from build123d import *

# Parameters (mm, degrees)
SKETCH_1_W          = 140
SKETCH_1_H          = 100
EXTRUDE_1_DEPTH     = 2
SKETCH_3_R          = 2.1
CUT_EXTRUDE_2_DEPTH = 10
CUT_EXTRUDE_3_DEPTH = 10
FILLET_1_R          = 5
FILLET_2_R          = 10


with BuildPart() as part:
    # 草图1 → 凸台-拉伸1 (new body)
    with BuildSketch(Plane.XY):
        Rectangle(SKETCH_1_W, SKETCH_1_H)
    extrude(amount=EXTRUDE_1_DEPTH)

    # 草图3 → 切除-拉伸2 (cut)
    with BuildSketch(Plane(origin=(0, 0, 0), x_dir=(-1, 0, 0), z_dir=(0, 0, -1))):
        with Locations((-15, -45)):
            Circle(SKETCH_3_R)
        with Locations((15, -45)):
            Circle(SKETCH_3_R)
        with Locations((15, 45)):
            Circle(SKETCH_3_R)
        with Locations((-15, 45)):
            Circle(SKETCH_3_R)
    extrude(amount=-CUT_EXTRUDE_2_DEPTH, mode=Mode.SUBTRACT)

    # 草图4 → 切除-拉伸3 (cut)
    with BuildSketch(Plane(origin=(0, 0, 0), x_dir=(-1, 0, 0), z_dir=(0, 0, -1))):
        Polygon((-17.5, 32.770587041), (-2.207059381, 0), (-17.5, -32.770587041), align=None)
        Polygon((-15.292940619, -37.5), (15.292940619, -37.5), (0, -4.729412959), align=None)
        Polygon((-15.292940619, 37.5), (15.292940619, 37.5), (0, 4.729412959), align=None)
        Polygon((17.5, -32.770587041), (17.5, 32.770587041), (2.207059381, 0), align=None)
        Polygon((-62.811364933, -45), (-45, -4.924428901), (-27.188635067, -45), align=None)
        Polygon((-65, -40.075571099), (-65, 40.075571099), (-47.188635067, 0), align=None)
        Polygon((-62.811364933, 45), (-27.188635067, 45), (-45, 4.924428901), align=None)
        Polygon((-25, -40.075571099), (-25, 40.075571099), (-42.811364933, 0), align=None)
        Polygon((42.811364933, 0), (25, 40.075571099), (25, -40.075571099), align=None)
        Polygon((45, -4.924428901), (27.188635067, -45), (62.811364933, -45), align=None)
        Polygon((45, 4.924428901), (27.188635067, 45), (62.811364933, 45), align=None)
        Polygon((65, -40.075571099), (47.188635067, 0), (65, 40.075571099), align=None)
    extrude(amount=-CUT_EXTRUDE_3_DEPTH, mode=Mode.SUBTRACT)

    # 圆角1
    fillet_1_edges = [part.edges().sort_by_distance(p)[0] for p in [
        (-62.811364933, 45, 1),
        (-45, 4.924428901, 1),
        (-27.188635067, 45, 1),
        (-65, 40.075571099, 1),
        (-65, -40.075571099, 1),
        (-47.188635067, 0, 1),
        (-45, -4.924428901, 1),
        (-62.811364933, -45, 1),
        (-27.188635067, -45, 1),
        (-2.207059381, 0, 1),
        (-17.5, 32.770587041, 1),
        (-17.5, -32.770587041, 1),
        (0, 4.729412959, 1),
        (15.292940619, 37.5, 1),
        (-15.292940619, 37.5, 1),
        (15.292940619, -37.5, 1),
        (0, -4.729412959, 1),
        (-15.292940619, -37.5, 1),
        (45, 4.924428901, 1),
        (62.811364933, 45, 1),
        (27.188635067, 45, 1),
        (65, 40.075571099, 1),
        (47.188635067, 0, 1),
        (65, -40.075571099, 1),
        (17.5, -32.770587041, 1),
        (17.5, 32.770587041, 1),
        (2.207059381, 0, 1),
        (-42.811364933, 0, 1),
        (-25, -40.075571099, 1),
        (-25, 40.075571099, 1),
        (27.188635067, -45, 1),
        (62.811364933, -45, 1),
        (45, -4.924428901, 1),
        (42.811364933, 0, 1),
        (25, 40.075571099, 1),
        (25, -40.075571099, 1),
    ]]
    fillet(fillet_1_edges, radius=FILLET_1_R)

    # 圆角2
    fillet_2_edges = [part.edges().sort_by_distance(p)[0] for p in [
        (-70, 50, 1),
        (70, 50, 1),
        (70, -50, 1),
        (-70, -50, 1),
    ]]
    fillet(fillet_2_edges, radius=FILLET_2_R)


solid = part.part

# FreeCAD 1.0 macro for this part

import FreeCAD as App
import Part
import Sketcher
from FreeCAD import Vector


def edges_at(feature, points):
    """Names of the edges that pass closest to the given points."""
    edges = feature.Shape.Edges
    near = lambda p: min(range(len(edges)), key=lambda i: edges[i].distToShape(Part.Vertex(*p))[0])
    return sorted({f"Edge{near(p) + 1}" for p in points})


def add_polygon(sketch, points):
    """Adds a closed chain of lines whose ends are joined by coincident constraints."""
    first, n = sketch.GeometryCount, len(points)
    for a, b in zip(points, points[1:] + points[:1]):
        sketch.addGeometry(Part.LineSegment(App.Vector(*a, 0), App.Vector(*b, 0)), False)
    for i in range(n):
        sketch.addConstraint(Sketcher.Constraint("Coincident", first + i, 2, first + (i + 1) % n, 1))

doc = App.newDocument("Part")
body = doc.addObject("PartDesign::Body", "Body")

# Sketch on XY plane
sketch1 = body.newObject("Sketcher::SketchObject", "Sketch")
sketch1.AttachmentSupport = (doc.getObject("XY_Plane"), [""])
sketch1.MapMode = "FlatFace"
add_polygon(sketch1, [(-70, 50), (-70, -50), (70, -50), (70, 50)])  # lines 0-3
sketch1.addConstraint(Sketcher.Constraint("Vertical", 0))
sketch1.addConstraint(Sketcher.Constraint("Horizontal", 1))
sketch1.addConstraint(Sketcher.Constraint("Vertical", 2))
sketch1.addConstraint(Sketcher.Constraint("Horizontal", 3))
sketch1.addConstraint(Sketcher.Constraint("Symmetric", 0, 2, 2, 2, -1, 1))
sketch1.addConstraint(Sketcher.Constraint("DistanceX", 1, 1, 1, 2, 140.0))
sketch1.addConstraint(Sketcher.Constraint("DistanceY", 0, 2, 0, 1, 100.0))
pad1 = body.newObject("PartDesign::Pad", "Pad")
pad1.Profile = sketch1
pad1.Length = 2

# Sketch on XY plane
sketch2 = body.newObject("Sketcher::SketchObject", "Sketch001")
sketch2.AttachmentSupport = (doc.getObject("XY_Plane"), [""])
sketch2.MapMode = "FlatFace"
sketch2.addGeometry(Part.Circle(Vector(15, -45, 0), Vector(0, 0, 1), 2.1), False)
sketch2.addGeometry(Part.Circle(Vector(-15, -45, 0), Vector(0, 0, 1), 2.1), False)
sketch2.addGeometry(Part.Circle(Vector(-15, 45, 0), Vector(0, 0, 1), 2.1), False)
sketch2.addGeometry(Part.Circle(Vector(15, 45, 0), Vector(0, 0, 1), 2.1), False)
sketch2.addConstraint(Sketcher.Constraint("Equal", 0, 1))
sketch2.addConstraint(Sketcher.Constraint("Equal", 1, 2))
sketch2.addConstraint(Sketcher.Constraint("Equal", 2, 3))
sketch2.addConstraint(Sketcher.Constraint("Symmetric", 0, 3, 2, 3, -1, 1))
sketch2.addConstraint(Sketcher.Constraint("Symmetric", 1, 3, 3, 3, -1, 1))
sketch2.addConstraint(Sketcher.Constraint("Symmetric", 0, 3, 1, 3, -2))
sketch2.addConstraint(Sketcher.Constraint("Diameter", 0, 4.2))
sketch2.addConstraint(Sketcher.Constraint("DistanceX", -1, 1, 0, 3, 15.0))
sketch2.addConstraint(Sketcher.Constraint("DistanceY", 0, 3, -1, 1, 45.0))
pocket1 = body.newObject("PartDesign::Pocket", "Pocket")
pocket1.Profile = sketch2
pocket1.Length = 10
pocket1.Reversed = True

# Sketch on XY plane
sketch3 = body.newObject("Sketcher::SketchObject", "Sketch002")
sketch3.AttachmentSupport = (doc.getObject("XY_Plane"), [""])
sketch3.MapMode = "FlatFace"
add_polygon(sketch3, [(2, 0), (18, 33), (18, -33)])  # lines 0-2
add_polygon(sketch3, [(15, -38), (-15, -38), (0, -5)])  # lines 3-5
add_polygon(sketch3, [(-15, 38), (15, 38), (0, 5)])  # lines 6-8
add_polygon(sketch3, [(-18, -33), (-18, 33), (-2, 0)])  # lines 9-11
add_polygon(sketch3, [(45, -5), (63, -45), (27, -45)])  # lines 12-14
add_polygon(sketch3, [(65, 40), (65, -40), (47, 0)])  # lines 15-17
add_polygon(sketch3, [(27, 45), (63, 45), (45, 5)])  # lines 18-20
add_polygon(sketch3, [(25, -40), (25, 40), (43, 0)])  # lines 21-23
add_polygon(sketch3, [(-43, 0), (-25, 40), (-25, -40)])  # lines 24-26
add_polygon(sketch3, [(-45, -5), (-27, -45), (-63, -45)])  # lines 27-29
add_polygon(sketch3, [(-27, 45), (-45, 5), (-63, 45)])  # lines 30-32
add_polygon(sketch3, [(-47, 0), (-65, -40), (-65, 40)])  # lines 33-35
sketch3.addConstraint(Sketcher.Constraint("Vertical", 1))
sketch3.addConstraint(Sketcher.Constraint("Horizontal", 3))
sketch3.addConstraint(Sketcher.Constraint("Horizontal", 6))
sketch3.addConstraint(Sketcher.Constraint("Vertical", 9))
sketch3.addConstraint(Sketcher.Constraint("Horizontal", 13))
sketch3.addConstraint(Sketcher.Constraint("Vertical", 15))
sketch3.addConstraint(Sketcher.Constraint("Horizontal", 18))
sketch3.addConstraint(Sketcher.Constraint("Vertical", 21))
sketch3.addConstraint(Sketcher.Constraint("Vertical", 25))
sketch3.addConstraint(Sketcher.Constraint("Horizontal", 28))
sketch3.addConstraint(Sketcher.Constraint("Horizontal", 32))
sketch3.addConstraint(Sketcher.Constraint("Vertical", 34))
sketch3.addConstraint(Sketcher.Constraint("Symmetric", 3, 2, 6, 2, -1, 1))
sketch3.addConstraint(Sketcher.Constraint("Symmetric", 4, 2, 7, 2, -1, 1))
sketch3.addConstraint(Sketcher.Constraint("Symmetric", 1, 2, 9, 2, -1, 1))
sketch3.addConstraint(Sketcher.Constraint("Symmetric", 2, 2, 10, 2, -1, 1))
sketch3.addConstraint(Sketcher.Constraint("Symmetric", 23, 2, 24, 2, -1, 1))
sketch3.addConstraint(Sketcher.Constraint("Symmetric", 22, 2, 26, 2, -1, 1))
sketch3.addConstraint(Sketcher.Constraint("Symmetric", 20, 2, 27, 2, -1, 1))
sketch3.addConstraint(Sketcher.Constraint("Symmetric", 19, 2, 29, 2, -1, 1))
sketch3.addConstraint(Sketcher.Constraint("Symmetric", 14, 2, 30, 2, -1, 1))
sketch3.addConstraint(Sketcher.Constraint("Symmetric", 12, 2, 31, 2, -1, 1))
sketch3.addConstraint(Sketcher.Constraint("Symmetric", 17, 2, 33, 2, -1, 1))
sketch3.addConstraint(Sketcher.Constraint("Symmetric", 16, 2, 35, 2, -1, 1))
sketch3.addConstraint(Sketcher.Constraint("Symmetric", 13, 2, 27, 2, -2))
sketch3.addConstraint(Sketcher.Constraint("Symmetric", 14, 2, 29, 2, -2))
sketch3.addConstraint(Sketcher.Constraint("PointOnObject", 2, 2, -1))
sketch3.addConstraint(Sketcher.Constraint("PointOnObject", 4, 2, -2))
sketch3.addConstraint(Sketcher.Constraint("PointOnObject", 16, 2, -1))
sketch3.addConstraint(Sketcher.Constraint("PointOnObject", 22, 2, -1))
sketch3.addConstraint(Sketcher.Constraint("Parallel", 0, 4))
sketch3.addConstraint(Sketcher.Constraint("Parallel", 2, 5))
sketch3.addConstraint(Sketcher.Constraint("Parallel", 5, 8))
sketch3.addConstraint(Sketcher.Constraint("Parallel", 7, 11))
sketch3.addConstraint(Sketcher.Constraint("Parallel", 12, 16))
sketch3.addConstraint(Sketcher.Constraint("Parallel", 14, 17))
sketch3.addConstraint(Sketcher.Constraint("Parallel", 17, 19))
sketch3.addConstraint(Sketcher.Constraint("Parallel", 16, 20))
sketch3.addConstraint(Sketcher.Constraint("Parallel", 20, 22))
sketch3.addConstraint(Sketcher.Constraint("Parallel", 19, 23))
sketch3.addConstraint(Sketcher.Constraint("Parallel", 22, 26))
sketch3.addConstraint(Sketcher.Constraint("Parallel", 24, 29))
sketch3.addConstraint(Sketcher.Constraint("Parallel", 29, 30))
sketch3.addConstraint(Sketcher.Constraint("Parallel", 31, 35))
sketch3.addConstraint(Sketcher.Constraint("Horizontal", 0, 2, 9, 2))
sketch3.addConstraint(Sketcher.Constraint("Horizontal", 17, 2, 21, 2))
sketch3.addConstraint(Sketcher.Constraint("Equal", 2, 4))
sketch3.addConstraint(Sketcher.Constraint("Equal", 14, 16))
sketch3.addConstraint(Sketcher.Constraint("DistanceY", 12, 2, -1, 1, 45.0))
sketch3.addConstraint(Sketcher.Constraint("DistanceX", -1, 1, 14, 2, 45.0))
sketch3.addConstraint(Sketcher.Constraint("DistanceX", -1, 1, 15, 2, 65.0))
sketch3.addConstraint(Sketcher.Constraint("DistanceX", -1, 1, 21, 2, 25.0))
sketch3.addConstraint(Sketcher.Constraint("DistanceY", 5, 2, 6, 2, 75.0))
sketch3.addConstraint(Sketcher.Constraint("DistanceX", 9, 2, 0, 2, 35.0))
sketch3.addConstraint(Sketcher.Constraint("Distance", 12, 43.8554))
sketch3.addConstraint(Sketcher.Constraint("DistanceX", 3, 2, 3, 1, 30.585881))
sketch3.addConstraint(Sketcher.Constraint("DistanceX", 13, 2, 13, 1, 35.62273))
sketch3.addConstraint(Sketcher.Constraint("DistanceY", 1, 2, 1, 1, 65.541174))
pocket2 = body.newObject("PartDesign::Pocket", "Pocket001")
pocket2.Profile = sketch3
pocket2.Length = 10
pocket2.Reversed = True
doc.recompute()

fillet = body.newObject("PartDesign::Fillet", "Fillet")
fillet.Base = (pocket2, edges_at(pocket2, [
    (-62.811, 45, 1),
    (-45, 4.924, 1),
    (-27.189, 45, 1),
    (-65, 40.076, 1),
    (-65, -40.076, 1),
    (-47.189, 0, 1),
    (-45, -4.924, 1),
    (-62.811, -45, 1),
    (-27.189, -45, 1),
    (-2.207, 0, 1),
    (-17.5, 32.771, 1),
    (-17.5, -32.771, 1),
    (0, 4.729, 1),
    (15.293, 37.5, 1),
    (-15.293, 37.5, 1),
    (15.293, -37.5, 1),
    (0, -4.729, 1),
    (-15.293, -37.5, 1),
    (45, 4.924, 1),
    (62.811, 45, 1),
    (27.189, 45, 1),
    (65, 40.076, 1),
    (47.189, 0, 1),
    (65, -40.076, 1),
    (17.5, -32.771, 1),
    (17.5, 32.771, 1),
    (2.207, 0, 1),
    (-42.811, 0, 1),
    (-25, -40.076, 1),
    (-25, 40.076, 1),
    (27.189, -45, 1),
    (62.811, -45, 1),
    (45, -4.924, 1),
    (42.811, 0, 1),
    (25, 40.076, 1),
    (25, -40.076, 1),
]))
fillet.Radius = 5
doc.recompute()

fillet2 = body.newObject("PartDesign::Fillet", "Fillet001")
fillet2.Base = (fillet, edges_at(fillet, [
    (-70, 50, 1),
    (70, 50, 1),
    (70, -50, 1),
    (-70, -50, 1),
]))
fillet2.Radius = 10

doc.recompute()
